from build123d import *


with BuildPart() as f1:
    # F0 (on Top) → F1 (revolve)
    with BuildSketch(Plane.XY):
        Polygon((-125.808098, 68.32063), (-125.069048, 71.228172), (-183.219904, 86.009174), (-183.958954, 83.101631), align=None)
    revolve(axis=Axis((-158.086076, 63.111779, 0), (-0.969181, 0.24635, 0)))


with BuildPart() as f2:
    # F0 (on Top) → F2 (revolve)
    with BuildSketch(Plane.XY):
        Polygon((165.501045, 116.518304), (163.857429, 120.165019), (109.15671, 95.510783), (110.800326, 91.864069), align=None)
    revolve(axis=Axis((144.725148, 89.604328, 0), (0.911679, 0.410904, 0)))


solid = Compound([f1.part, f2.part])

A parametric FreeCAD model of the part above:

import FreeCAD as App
import Part
import Sketcher
Q = App.Units.Quantity

doc = App.newDocument("Part")
params = doc.addObject("Spreadsheet::Sheet", "Params")
for row, (alias, value) in enumerate([
    ("sketch1_length", "2.999999 mm"),
    ("sketch1_length2", "60.000001 mm"),
    ("revolution_angle", "360 deg"),
    ("sketch2_length", "4 mm"),
    ("sketch2_length2", "60 mm"),
    ("revolution2_angle", "360 deg"),
], start=1):
    params.set(f"A{row}", alias)
    params.set(f"B{row}", "=" + value)
    params.setAlias(f"B{row}", alias)

body = doc.addObject("PartDesign::Body", "Body")

# Sketch on XY plane
sketch1 = body.newObject("Sketcher::SketchObject", "Sketch")
sketch1.AttachmentSupport = (doc.getObject("XY_Plane"), [""])
sketch1.MapMode = "FlatFace"
sketch1.addGeometry([
    Part.LineSegment(App.Vector(-125.8, 68.3, 0), App.Vector(-125.1, 71.2, 0)),
    Part.LineSegment(App.Vector(-125.1, 71.2, 0), App.Vector(-183.2, 86, 0)),
    Part.LineSegment(App.Vector(-183.2, 86, 0), App.Vector(-184, 83.1, 0)),
    Part.LineSegment(App.Vector(-184, 83.1, 0), App.Vector(-125.8, 68.3, 0)),
], False)
sketch1.addGeometry(Part.LineSegment(App.Vector(-129, 55.7, 0), App.Vector(-187.2, 70.5, 0)), True)  # axis
sketch1.addConstraint([
    Sketcher.Constraint("Coincident", 0, 2, 1, 1),
    Sketcher.Constraint("Coincident", 1, 2, 2, 1),
    Sketcher.Constraint("Coincident", 2, 2, 3, 1),
    Sketcher.Constraint("Coincident", 3, 2, 0, 1),
    Sketcher.Constraint("Perpendicular", 0, 1),
    Sketcher.Constraint("Perpendicular", 1, 2),
    Sketcher.Constraint("Perpendicular", 2, 3),
    Sketcher.Constraint("Parallel", 3, 4),
    Sketcher.Constraint("Equal", 3, 4),
    Sketcher.Constraint("Distance", 0, Q("2.999999 mm")),
    Sketcher.Constraint("Distance", 1, Q("60.000001 mm")),
    Sketcher.Constraint("DistanceY", 3, 2, 2, 2, Q("14.781001 mm")),
    Sketcher.Constraint("DistanceX", 3, 2, -1, 1, Q("125.808098 mm")),
    Sketcher.Constraint("DistanceX", 4, 1, 0, 2, Q("3.941599 mm")),
    Sketcher.Constraint("DistanceY", -1, 1, 0, 2, Q("71.228172 mm")),
    Sketcher.Constraint("DistanceY", -1, 1, 4, 1, Q("55.721279 mm")),
])
sketch1.setExpression("Constraints[9]", "Params.sketch1_length")
sketch1.setExpression("Constraints[10]", "Params.sketch1_length2")
revolution = body.newObject("PartDesign::Revolution", "Revolution")
revolution.Profile = sketch1
revolution.ReferenceAxis = (sketch1, ["Axis0"])
revolution.setExpression("Angle", "Params.revolution_angle")
body2 = doc.addObject("PartDesign::Body", "Body001")

# Sketch on XY plane
sketch2 = body2.newObject("Sketcher::SketchObject", "Sketch001")
sketch2.AttachmentSupport = (doc.getObject("XY_Plane001"), [""])
sketch2.MapMode = "FlatFace"
sketch2.addGeometry([
    Part.LineSegment(App.Vector(165.5, 116.5, 0), App.Vector(163.9, 120.2, 0)),
    Part.LineSegment(App.Vector(163.9, 120.2, 0), App.Vector(109.2, 95.5, 0)),
    Part.LineSegment(App.Vector(109.2, 95.5, 0), App.Vector(110.8, 91.9, 0)),
    Part.LineSegment(App.Vector(110.8, 91.9, 0), App.Vector(165.5, 116.5, 0)),
], False)
sketch2.addGeometry(Part.LineSegment(App.Vector(117.4, 77.3, 0), App.Vector(172.1, 101.9, 0)), True)  # axis
sketch2.addConstraint([
    Sketcher.Constraint("Coincident", 0, 2, 1, 1),
    Sketcher.Constraint("Coincident", 1, 2, 2, 1),
    Sketcher.Constraint("Coincident", 2, 2, 3, 1),
    Sketcher.Constraint("Coincident", 3, 2, 0, 1),
    Sketcher.Constraint("Perpendicular", 0, 1),
    Sketcher.Constraint("Perpendicular", 1, 2),
    Sketcher.Constraint("Perpendicular", 2, 3),
    Sketcher.Constraint("Parallel", 3, 4),
    Sketcher.Constraint("Equal", 3, 4),
    Sketcher.Constraint("Distance", 0, Q("4 mm")),
    Sketcher.Constraint("Distance", 1, Q("60 mm")),
    Sketcher.Constraint("DistanceX", -1, 1, 0, 2, Q("163.857429 mm")),
    Sketcher.Constraint("DistanceY", -1, 1, 0, 2, Q("120.165019 mm")),
    Sketcher.Constraint("DistanceX", -1, 1, 1, 2, Q("109.15671 mm")),
    Sketcher.Constraint("DistanceY", -1, 1, 4, 1, Q("77.277212 mm")),
    Sketcher.Constraint("DistanceX", 2, 2, 4, 1, Q("6.57446 mm")),
])
sketch2.setExpression("Constraints[9]", "Params.sketch2_length")
sketch2.setExpression("Constraints[10]", "Params.sketch2_length2")
revolution2 = body2.newObject("PartDesign::Revolution", "Revolution001")
revolution2.Profile = sketch2
revolution2.ReferenceAxis = (sketch2, ["Axis0"])
revolution2.setExpression("Angle", "Params.revolution2_angle")

doc.recompute()
